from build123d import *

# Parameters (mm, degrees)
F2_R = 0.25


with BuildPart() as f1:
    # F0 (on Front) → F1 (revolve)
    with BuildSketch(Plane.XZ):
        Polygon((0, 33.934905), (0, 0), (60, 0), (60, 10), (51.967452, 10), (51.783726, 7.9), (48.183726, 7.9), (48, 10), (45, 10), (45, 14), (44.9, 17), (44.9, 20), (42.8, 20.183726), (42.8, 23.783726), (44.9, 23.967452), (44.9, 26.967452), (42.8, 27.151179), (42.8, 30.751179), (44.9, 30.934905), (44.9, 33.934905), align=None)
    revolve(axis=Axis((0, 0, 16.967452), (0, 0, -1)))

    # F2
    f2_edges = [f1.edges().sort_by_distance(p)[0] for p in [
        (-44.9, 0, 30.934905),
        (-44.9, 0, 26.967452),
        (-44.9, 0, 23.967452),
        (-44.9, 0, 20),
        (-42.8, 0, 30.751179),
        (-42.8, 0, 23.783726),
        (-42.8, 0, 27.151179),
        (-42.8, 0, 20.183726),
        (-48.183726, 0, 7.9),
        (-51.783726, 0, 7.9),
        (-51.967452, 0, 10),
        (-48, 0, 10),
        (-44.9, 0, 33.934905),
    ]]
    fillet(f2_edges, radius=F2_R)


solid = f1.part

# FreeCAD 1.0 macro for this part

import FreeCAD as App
import Part
import Sketcher
Q = App.Units.Quantity


def edges_at(feature, points):
    """Names of the edges that pass closest to the given points."""
    edges = feature.Shape.Edges
    near = lambda p: min(range(len(edges)), key=lambda i: edges[i].distToShape(Part.Vertex(*p))[0])
    return sorted({f"Edge{near(p) + 1}" for p in points})


def add_polygon(sketch, points):
    """Adds a closed chain of lines whose ends are joined by coincident constraints."""
    first, n = sketch.GeometryCount, len(points)
    for a, b in zip(points, points[1:] + points[:1]):
        sketch.addGeometry(Part.LineSegment(App.Vector(*a, 0), App.Vector(*b, 0)), False)
    for i in range(n):
        sketch.addConstraint(Sketcher.Constraint("Coincident", first + i, 2, first + (i + 1) % n, 1))

doc = App.newDocument("Part")
params = doc.addObject("Spreadsheet::Sheet", "Params")
for row, (alias, value) in enumerate([
    ("sketch1_width", "60 mm"),
    ("sketch1_width2", "3 mm"),
    ("sketch1_height", "10 mm"),
    ("sketch1_height2", "4 mm"),
    ("sketch1_width3", "3.6 mm"),
    ("revolution_angle", "360 deg"),
    ("fillet_radius", "0.25 mm"),
], start=1):
    params.set(f"A{row}", alias)
    params.set(f"B{row}", "=" + value)
    params.setAlias(f"B{row}", alias)

body = doc.addObject("PartDesign::Body", "Body")

# Sketch on XZ plane
sketch1 = doc.addObject("Sketcher::SketchObject", "Sketch")
body.addObject(sketch1)
sketch1.AttachmentSupport = (doc.XZ_Plane, [""])
sketch1.MapMode = "FlatFace"
add_polygon(sketch1, [(0, 33.9), (0, 0), (60, 0), (60, 10), (52, 10), (51.8, 7.9), (48.2, 7.9), (48, 10), (45, 10), (45, 14), (44.9, 17), (44.9, 20), (42.8, 20.2), (42.8, 23.8), (44.9, 24), (44.9, 27), (42.8, 27.2), (42.8, 30.8), (44.9, 30.9), (44.9, 33.9)])  # lines 0-19
sketch1.addConstraint([
    Sketcher.Constraint("Vertical", 0),
    Sketcher.Constraint("Horizontal", 1),
    Sketcher.Constraint("Vertical", 2),
    Sketcher.Constraint("Horizontal", 3),
    Sketcher.Constraint("Horizontal", 5),
    Sketcher.Constraint("Horizontal", 7),
    Sketcher.Constraint("Vertical", 8),
    Sketcher.Constraint("Vertical", 10),
    Sketcher.Constraint("Vertical", 12),
    Sketcher.Constraint("Vertical", 14),
    Sketcher.Constraint("Vertical", 16),
    Sketcher.Constraint("Vertical", 18),
    Sketcher.Constraint("Horizontal", 19),
    Sketcher.Constraint("Coincident", 0, 2, -1, 1),
    Sketcher.Constraint("Perpendicular", 4, 11),
    Sketcher.Constraint("Perpendicular", 6, 13),
    Sketcher.Constraint("Parallel", 11, 15),
    Sketcher.Constraint("Parallel", 13, 17),
    Sketcher.Constraint("Horizontal", 3, 2, 6, 2),
    Sketcher.Constraint("Vertical", 10, 2, 13, 2),
    Sketcher.Constraint("Vertical", 12, 2, 15, 2),
    Sketcher.Constraint("Vertical", 14, 2, 17, 2),
    Sketcher.Constraint("Equal", 7, 10),
    Sketcher.Constraint("Equal", 5, 12),
    Sketcher.Constraint("Equal", 10, 14),
    Sketcher.Constraint("Equal", 12, 16),
    Sketcher.Constraint("Equal", 14, 18),
    Sketcher.Constraint("Equal", 4, 6),
    Sketcher.Constraint("Equal", 6, 11),
    Sketcher.Constraint("DistanceX", 1, 1, 1, 2, 60.0),
    Sketcher.Constraint("DistanceX", 7, 2, 7, 1, 3.0),
    Sketcher.Constraint("DistanceY", 2, 1, 2, 2, 10.0),
    Sketcher.Constraint("DistanceY", 8, 1, 8, 2, 4.0),
    Sketcher.Constraint("Angle", 4, Q("-94.999995 deg")),
    Sketcher.Constraint("DistanceX", 5, 2, 5, 1, 3.6),
    Sketcher.Constraint("DistanceX", 19, 2, 19, 1, 44.9),
    Sketcher.Constraint("DistanceX", -1, 1, 6, 2, 48.0),
    Sketcher.Constraint("DistanceY", -1, 1, 9, 2, 17.0),
    Sketcher.Constraint("DistanceY", -1, 1, 4, 2, 7.9),
])
sketch1.setExpression("Constraints[49]", "Params.sketch1_width")
sketch1.setExpression("Constraints[50]", "Params.sketch1_width2")
sketch1.setExpression("Constraints[51]", "Params.sketch1_height")
sketch1.setExpression("Constraints[52]", "Params.sketch1_height2")
sketch1.setExpression("Constraints[54]", "Params.sketch1_width3")
revolution = doc.addObject("PartDesign::Revolution", "Revolution")
body.addObject(revolution)
revolution.Profile = sketch1
revolution.ReferenceAxis = (sketch1, ["V_Axis"])
revolution.setExpression("Angle", "Params.revolution_angle")
doc.recompute()

fillet = doc.addObject("PartDesign::Fillet", "Fillet")
body.addObject(fillet)
fillet.Base = (revolution, edges_at(revolution, [
    (-44.9, 0, 30.935),
    (-44.9, 0, 26.967),
    (-44.9, 0, 23.967),
    (-44.9, 0, 20),
    (-42.8, 0, 30.751),
    (-42.8, 0, 23.784),
    (-42.8, 0, 27.151),
    (-42.8, 0, 20.184),
    (-48.184, 0, 7.9),
    (-51.784, 0, 7.9),
    (-51.967, 0, 10),
    (-48, 0, 10),
    (-44.9, 0, 33.935),
]))
fillet.setExpression("Radius", "Params.fillet_radius")

doc.recompute()
